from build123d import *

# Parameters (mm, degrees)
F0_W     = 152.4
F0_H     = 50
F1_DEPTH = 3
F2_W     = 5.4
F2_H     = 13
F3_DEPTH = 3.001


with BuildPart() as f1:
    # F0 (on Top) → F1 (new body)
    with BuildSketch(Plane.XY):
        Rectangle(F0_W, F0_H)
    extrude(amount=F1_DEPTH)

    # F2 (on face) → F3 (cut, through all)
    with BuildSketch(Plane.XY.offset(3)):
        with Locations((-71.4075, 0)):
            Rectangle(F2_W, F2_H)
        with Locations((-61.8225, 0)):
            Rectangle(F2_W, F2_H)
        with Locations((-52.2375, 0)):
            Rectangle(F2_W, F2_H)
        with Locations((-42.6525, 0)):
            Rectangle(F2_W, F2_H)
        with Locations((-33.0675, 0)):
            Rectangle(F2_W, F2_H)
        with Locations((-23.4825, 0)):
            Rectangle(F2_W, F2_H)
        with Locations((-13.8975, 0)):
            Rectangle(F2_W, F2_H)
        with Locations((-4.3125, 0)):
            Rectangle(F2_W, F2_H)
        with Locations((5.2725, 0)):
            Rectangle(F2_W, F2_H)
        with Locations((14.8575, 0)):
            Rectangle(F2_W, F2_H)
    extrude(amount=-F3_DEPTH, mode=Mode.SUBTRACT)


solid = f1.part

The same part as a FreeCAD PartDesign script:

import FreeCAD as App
import Part
import Sketcher
from FreeCAD import Vector
Q = App.Units.Quantity

doc = App.newDocument("Part")
body = doc.addObject("PartDesign::Body", "Body")

# Sketch on XY plane
sketch1 = body.newObject("Sketcher::SketchObject", "Sketch")
sketch1.AttachmentSupport = (doc.getObject("XY_Plane"), [""])
sketch1.MapMode = "FlatFace"
sketch1.addGeometry(Part.LineSegment(Vector(-76, 25, 0), Vector(-76, -25, 0)), False)
sketch1.addGeometry(Part.LineSegment(Vector(-76, -25, 0), Vector(76, -25, 0)), False)
sketch1.addGeometry(Part.LineSegment(Vector(76, -25, 0), Vector(76, 25, 0)), False)
sketch1.addGeometry(Part.LineSegment(Vector(76, 25, 0), Vector(-76, 25, 0)), False)
sketch1.addConstraint(Sketcher.Constraint("Coincident", 0, 2, 1, 1))
sketch1.addConstraint(Sketcher.Constraint("Coincident", 1, 2, 2, 1))
sketch1.addConstraint(Sketcher.Constraint("Coincident", 2, 2, 3, 1))
sketch1.addConstraint(Sketcher.Constraint("Coincident", 3, 2, 0, 1))
sketch1.addConstraint(Sketcher.Constraint("Vertical", 0))
sketch1.addConstraint(Sketcher.Constraint("Horizontal", 1))
sketch1.addConstraint(Sketcher.Constraint("Vertical", 2))
sketch1.addConstraint(Sketcher.Constraint("Horizontal", 3))
sketch1.addConstraint(Sketcher.Constraint("Symmetric", 0, 2, 2, 2, -1, 1))
sketch1.addConstraint(Sketcher.Constraint("DistanceY", 0, 2, 0, 1, Q("50 mm")))
sketch1.addConstraint(Sketcher.Constraint("DistanceX", 1, 1, 1, 2, Q("152.4 mm")))
pad1 = body.newObject("PartDesign::Pad", "Pad")
pad1.Profile = sketch1
pad1.Length = 3

# Sketch on XY plane
sketch2 = body.newObject("Sketcher::SketchObject", "Sketch001")
sketch2.AttachmentSupport = (doc.getObject("XY_Plane"), [""])
sketch2.MapMode = "FlatFace"
sketch2.AttachmentOffset = App.Placement(Vector(0, 0, 3), App.Rotation())
sketch2.addGeometry(Part.LineSegment(Vector(-74, 6, 0), Vector(-74, -6, 0)), False)
sketch2.addGeometry(Part.LineSegment(Vector(-74, -6, 0), Vector(-69, -6, 0)), False)
sketch2.addGeometry(Part.LineSegment(Vector(-69, -6, 0), Vector(-69, 6, 0)), False)
sketch2.addGeometry(Part.LineSegment(Vector(-69, 6, 0), Vector(-74, 6, 0)), False)
sketch2.addGeometry(Part.LineSegment(Vector(-65, 6, 0), Vector(-65, -6, 0)), False)
sketch2.addGeometry(Part.LineSegment(Vector(-65, -6, 0), Vector(-59, -6, 0)), False)
sketch2.addGeometry(Part.LineSegment(Vector(-59, -6, 0), Vector(-59, 6, 0)), False)
sketch2.addGeometry(Part.LineSegment(Vector(-59, 6, 0), Vector(-65, 6, 0)), False)
sketch2.addGeometry(Part.LineSegment(Vector(-55, 6, 0), Vector(-55, -6, 0)), False)
sketch2.addGeometry(Part.LineSegment(Vector(-55, -6, 0), Vector(-50, -6, 0)), False)
sketch2.addGeometry(Part.LineSegment(Vector(-50, -6, 0), Vector(-50, 6, 0)), False)
sketch2.addGeometry(Part.LineSegment(Vector(-50, 6, 0), Vector(-55, 6, 0)), False)
sketch2.addGeometry(Part.LineSegment(Vector(-45, 6, 0), Vector(-45, -6, 0)), False)
sketch2.addGeometry(Part.LineSegment(Vector(-45, -6, 0), Vector(-40, -6, 0)), False)
sketch2.addGeometry(Part.LineSegment(Vector(-40, -6, 0), Vector(-40, 6, 0)), False)
sketch2.addGeometry(Part.LineSegment(Vector(-40, 6, 0), Vector(-45, 6, 0)), False)
sketch2.addGeometry(Part.LineSegment(Vector(-36, 6, 0), Vector(-36, -6, 0)), False)
sketch2.addGeometry(Part.LineSegment(Vector(-36, -6, 0), Vector(-30, -6, 0)), False)
sketch2.addGeometry(Part.LineSegment(Vector(-30, -6, 0), Vector(-30, 6, 0)), False)
sketch2.addGeometry(Part.LineSegment(Vector(-30, 6, 0), Vector(-36, 6, 0)), False)
sketch2.addGeometry(Part.LineSegment(Vector(-26, 6, 0), Vector(-26, -6, 0)), False)
sketch2.addGeometry(Part.LineSegment(Vector(-26, -6, 0), Vector(-21, -6, 0)), False)
sketch2.addGeometry(Part.LineSegment(Vector(-21, -6, 0), Vector(-21, 6, 0)), False)
sketch2.addGeometry(Part.LineSegment(Vector(-21, 6, 0), Vector(-26, 6, 0)), False)
sketch2.addGeometry(Part.LineSegment(Vector(-17, 6, 0), Vector(-17, -6, 0)), False)
sketch2.addGeometry(Part.LineSegment(Vector(-17, -6, 0), Vector(-11, -6, 0)), False)
sketch2.addGeometry(Part.LineSegment(Vector(-11, -6, 0), Vector(-11, 6, 0)), False)
sketch2.addGeometry(Part.LineSegment(Vector(-11, 6, 0), Vector(-17, 6, 0)), False)
sketch2.addGeometry(Part.LineSegment(Vector(-7, 6, 0), Vector(-7, -6, 0)), False)
sketch2.addGeometry(Part.LineSegment(Vector(-7, -6, 0), Vector(-2, -6, 0)), False)
sketch2.addGeometry(Part.LineSegment(Vector(-2, -6, 0), Vector(-2, 6, 0)), False)
sketch2.addGeometry(Part.LineSegment(Vector(-2, 6, 0), Vector(-7, 6, 0)), False)
sketch2.addGeometry(Part.LineSegment(Vector(3, 6, 0), Vector(3, -6, 0)), False)
sketch2.addGeometry(Part.LineSegment(Vector(3, -6, 0), Vector(8, -6, 0)), False)
sketch2.addGeometry(Part.LineSegment(Vector(8, -6, 0), Vector(8, 6, 0)), False)
sketch2.addGeometry(Part.LineSegment(Vector(8, 6, 0), Vector(3, 6, 0)), False)
sketch2.addGeometry(Part.LineSegment(Vector(12, 6, 0), Vector(12, -6, 0)), False)
sketch2.addGeometry(Part.LineSegment(Vector(12, -6, 0), Vector(18, -6, 0)), False)
sketch2.addGeometry(Part.LineSegment(Vector(18, -6, 0), Vector(18, 6, 0)), False)
sketch2.addGeometry(Part.LineSegment(Vector(18, 6, 0), Vector(12, 6, 0)), False)
sketch2.addConstraint(Sketcher.Constraint("Coincident", 0, 2, 1, 1))
sketch2.addConstraint(Sketcher.Constraint("Coincident", 1, 2, 2, 1))
sketch2.addConstraint(Sketcher.Constraint("Coincident", 2, 2, 3, 1))
sketch2.addConstraint(Sketcher.Constraint("Coincident", 3, 2, 0, 1))
sketch2.addConstraint(Sketcher.Constraint("Coincident", 4, 2, 5, 1))
sketch2.addConstraint(Sketcher.Constraint("Coincident", 5, 2, 6, 1))
sketch2.addConstraint(Sketcher.Constraint("Coincident", 6, 2, 7, 1))
sketch2.addConstraint(Sketcher.Constraint("Coincident", 7, 2, 4, 1))
sketch2.addConstraint(Sketcher.Constraint("Coincident", 8, 2, 9, 1))
sketch2.addConstraint(Sketcher.Constraint("Coincident", 9, 2, 10, 1))
sketch2.addConstraint(Sketcher.Constraint("Coincident", 10, 2, 11, 1))
sketch2.addConstraint(Sketcher.Constraint("Coincident", 11, 2, 8, 1))
sketch2.addConstraint(Sketcher.Constraint("Coincident", 12, 2, 13, 1))
sketch2.addConstraint(Sketcher.Constraint("Coincident", 13, 2, 14, 1))
sketch2.addConstraint(Sketcher.Constraint("Coincident", 14, 2, 15, 1))
sketch2.addConstraint(Sketcher.Constraint("Coincident", 15, 2, 12, 1))
sketch2.addConstraint(Sketcher.Constraint("Coincident", 16, 2, 17, 1))
sketch2.addConstraint(Sketcher.Constraint("Coincident", 17, 2, 18, 1))
sketch2.addConstraint(Sketcher.Constraint("Coincident", 18, 2, 19, 1))
sketch2.addConstraint(Sketcher.Constraint("Coincident", 19, 2, 16, 1))
sketch2.addConstraint(Sketcher.Constraint("Coincident", 20, 2, 21, 1))
sketch2.addConstraint(Sketcher.Constraint("Coincident", 21, 2, 22, 1))
sketch2.addConstraint(Sketcher.Constraint("Coincident", 22, 2, 23, 1))
sketch2.addConstraint(Sketcher.Constraint("Coincident", 23, 2, 20, 1))
sketch2.addConstraint(Sketcher.Constraint("Coincident", 24, 2, 25, 1))
sketch2.addConstraint(Sketcher.Constraint("Coincident", 25, 2, 26, 1))
sketch2.addConstraint(Sketcher.Constraint("Coincident", 26, 2, 27, 1))
sketch2.addConstraint(Sketcher.Constraint("Coincident", 27, 2, 24, 1))
sketch2.addConstraint(Sketcher.Constraint("Coincident", 28, 2, 29, 1))
sketch2.addConstraint(Sketcher.Constraint("Coincident", 29, 2, 30, 1))
sketch2.addConstraint(Sketcher.Constraint("Coincident", 30, 2, 31, 1))
sketch2.addConstraint(Sketcher.Constraint("Coincident", 31, 2, 28, 1))
sketch2.addConstraint(Sketcher.Constraint("Coincident", 32, 2, 33, 1))
sketch2.addConstraint(Sketcher.Constraint("Coincident", 33, 2, 34, 1))
sketch2.addConstraint(Sketcher.Constraint("Coincident", 34, 2, 35, 1))
sketch2.addConstraint(Sketcher.Constraint("Coincident", 35, 2, 32, 1))
sketch2.addConstraint(Sketcher.Constraint("Coincident", 36, 2, 37, 1))
sketch2.addConstraint(Sketcher.Constraint("Coincident", 37, 2, 38, 1))
sketch2.addConstraint(Sketcher.Constraint("Coincident", 38, 2, 39, 1))
sketch2.addConstraint(Sketcher.Constraint("Coincident", 39, 2, 36, 1))
sketch2.addConstraint(Sketcher.Constraint("Vertical", 0))
sketch2.addConstraint(Sketcher.Constraint("Horizontal", 1))
sketch2.addConstraint(Sketcher.Constraint("Vertical", 2))
sketch2.addConstraint(Sketcher.Constraint("Horizontal", 3))
sketch2.addConstraint(Sketcher.Constraint("Vertical", 4))
sketch2.addConstraint(Sketcher.Constraint("Horizontal", 5))
sketch2.addConstraint(Sketcher.Constraint("Vertical", 6))
sketch2.addConstraint(Sketcher.Constraint("Horizontal", 7))
sketch2.addConstraint(Sketcher.Constraint("Vertical", 8))
sketch2.addConstraint(Sketcher.Constraint("Horizontal", 9))
sketch2.addConstraint(Sketcher.Constraint("Vertical", 10))
sketch2.addConstraint(Sketcher.Constraint("Horizontal", 11))
sketch2.addConstraint(Sketcher.Constraint("Vertical", 12))
sketch2.addConstraint(Sketcher.Constraint("Horizontal", 13))
sketch2.addConstraint(Sketcher.Constraint("Vertical", 14))
sketch2.addConstraint(Sketcher.Constraint("Horizontal", 15))
sketch2.addConstraint(Sketcher.Constraint("Vertical", 16))
sketch2.addConstraint(Sketcher.Constraint("Horizontal", 17))
sketch2.addConstraint(Sketcher.Constraint("Vertical", 18))
sketch2.addConstraint(Sketcher.Constraint("Horizontal", 19))
sketch2.addConstraint(Sketcher.Constraint("Vertical", 20))
sketch2.addConstraint(Sketcher.Constraint("Horizontal", 21))
sketch2.addConstraint(Sketcher.Constraint("Vertical", 22))
sketch2.addConstraint(Sketcher.Constraint("Horizontal", 23))
sketch2.addConstraint(Sketcher.Constraint("Vertical", 24))
sketch2.addConstraint(Sketcher.Constraint("Horizontal", 25))
sketch2.addConstraint(Sketcher.Constraint("Vertical", 26))
sketch2.addConstraint(Sketcher.Constraint("Horizontal", 27))
sketch2.addConstraint(Sketcher.Constraint("Vertical", 28))
sketch2.addConstraint(Sketcher.Constraint("Horizontal", 29))
sketch2.addConstraint(Sketcher.Constraint("Vertical", 30))
sketch2.addConstraint(Sketcher.Constraint("Horizontal", 31))
sketch2.addConstraint(Sketcher.Constraint("Vertical", 32))
sketch2.addConstraint(Sketcher.Constraint("Horizontal", 33))
sketch2.addConstraint(Sketcher.Constraint("Vertical", 34))
sketch2.addConstraint(Sketcher.Constraint("Horizontal", 35))
sketch2.addConstraint(Sketcher.Constraint("Vertical", 36))
sketch2.addConstraint(Sketcher.Constraint("Horizontal", 37))
sketch2.addConstraint(Sketcher.Constraint("Vertical", 38))
sketch2.addConstraint(Sketcher.Constraint("Horizontal", 39))
sketch2.addConstraint(Sketcher.Constraint("Horizontal", 1, 2, 4, 2))
sketch2.addConstraint(Sketcher.Constraint("Horizontal", 3, 2, 6, 2))
sketch2.addConstraint(Sketcher.Constraint("Horizontal", 5, 2, 8, 2))
sketch2.addConstraint(Sketcher.Constraint("Horizontal", 7, 2, 10, 2))
sketch2.addConstraint(Sketcher.Constraint("Horizontal", 9, 2, 12, 2))
sketch2.addConstraint(Sketcher.Constraint("Horizontal", 11, 2, 14, 2))
sketch2.addConstraint(Sketcher.Constraint("Horizontal", 13, 2, 16, 2))
sketch2.addConstraint(Sketcher.Constraint("Horizontal", 15, 2, 18, 2))
sketch2.addConstraint(Sketcher.Constraint("Horizontal", 17, 2, 20, 2))
sketch2.addConstraint(Sketcher.Constraint("Horizontal", 19, 2, 22, 2))
sketch2.addConstraint(Sketcher.Constraint("Horizontal", 21, 2, 24, 2))
sketch2.addConstraint(Sketcher.Constraint("Horizontal", 23, 2, 26, 2))
sketch2.addConstraint(Sketcher.Constraint("Horizontal", 25, 2, 28, 2))
sketch2.addConstraint(Sketcher.Constraint("Horizontal", 27, 2, 30, 2))
sketch2.addConstraint(Sketcher.Constraint("Horizontal", 29, 2, 32, 2))
sketch2.addConstraint(Sketcher.Constraint("Horizontal", 31, 2, 34, 2))
sketch2.addConstraint(Sketcher.Constraint("Horizontal", 33, 2, 36, 2))
sketch2.addConstraint(Sketcher.Constraint("Horizontal", 35, 2, 38, 2))
sketch2.addConstraint(Sketcher.Constraint("Equal", 3, 5))
sketch2.addConstraint(Sketcher.Constraint("Equal", 7, 9))
sketch2.addConstraint(Sketcher.Constraint("Equal", 11, 13))
sketch2.addConstraint(Sketcher.Constraint("Equal", 15, 17))
sketch2.addConstraint(Sketcher.Constraint("Equal", 19, 21))
sketch2.addConstraint(Sketcher.Constraint("Equal", 23, 25))
sketch2.addConstraint(Sketcher.Constraint("Equal", 27, 29))
sketch2.addConstraint(Sketcher.Constraint("Equal", 31, 33))
sketch2.addConstraint(Sketcher.Constraint("Equal", 35, 37))
sketch2.addConstraint(Sketcher.Constraint("DistanceY", 0, 2, 0, 1, Q("13 mm")))
sketch2.addConstraint(Sketcher.Constraint("DistanceX", 1, 1, 1, 2, Q("5.4 mm")))
sketch2.addConstraint(Sketcher.Constraint("DistanceY", 0, 2, -1, 1, Q("6.5 mm")))
sketch2.addConstraint(Sketcher.Constraint("DistanceX", 1, 2, 8, 2, Q("13.77 mm")))
sketch2.addConstraint(Sketcher.Constraint("DistanceX", 5, 2, 12, 2, Q("13.77 mm")))
sketch2.addConstraint(Sketcher.Constraint("DistanceX", 9, 2, 16, 2, Q("13.77 mm")))
sketch2.addConstraint(Sketcher.Constraint("DistanceX", 13, 2, 20, 2, Q("13.77 mm")))
sketch2.addConstraint(Sketcher.Constraint("DistanceX", 17, 2, 24, 2, Q("13.77 mm")))
sketch2.addConstraint(Sketcher.Constraint("DistanceX", 21, 2, 28, 2, Q("13.77 mm")))
sketch2.addConstraint(Sketcher.Constraint("DistanceX", 25, 2, 32, 2, Q("13.77 mm")))
sketch2.addConstraint(Sketcher.Constraint("DistanceX", 29, 2, 36, 2, Q("13.77 mm")))
sketch2.addConstraint(Sketcher.Constraint("DistanceX", 1, 2, 4, 2, Q("4.185 mm")))
sketch2.addConstraint(Sketcher.Constraint("DistanceX", 0, 2, -1, 1, Q("74.1075 mm")))
pocket1 = body.newObject("PartDesign::Pocket", "Pocket")
pocket1.Profile = sketch2
pocket1.Type = "ThroughAll"

doc.recompute()
